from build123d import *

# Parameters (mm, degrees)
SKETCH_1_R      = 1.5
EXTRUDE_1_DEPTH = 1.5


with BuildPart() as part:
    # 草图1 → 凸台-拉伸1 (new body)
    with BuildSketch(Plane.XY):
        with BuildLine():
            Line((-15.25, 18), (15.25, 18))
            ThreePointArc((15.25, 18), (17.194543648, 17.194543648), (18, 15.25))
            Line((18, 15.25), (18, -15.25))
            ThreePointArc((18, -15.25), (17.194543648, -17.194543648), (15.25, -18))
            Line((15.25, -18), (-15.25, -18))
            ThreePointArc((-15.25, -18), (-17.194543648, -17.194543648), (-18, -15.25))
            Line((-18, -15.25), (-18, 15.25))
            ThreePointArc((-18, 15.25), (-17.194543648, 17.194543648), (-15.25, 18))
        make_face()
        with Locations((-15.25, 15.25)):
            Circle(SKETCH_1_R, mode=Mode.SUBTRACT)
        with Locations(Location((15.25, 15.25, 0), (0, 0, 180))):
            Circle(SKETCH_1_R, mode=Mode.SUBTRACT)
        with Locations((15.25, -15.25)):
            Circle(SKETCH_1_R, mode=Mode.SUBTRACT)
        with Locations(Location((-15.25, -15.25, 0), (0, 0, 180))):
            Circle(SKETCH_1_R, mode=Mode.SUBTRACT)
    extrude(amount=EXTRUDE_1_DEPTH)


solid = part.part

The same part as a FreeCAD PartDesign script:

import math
import FreeCAD as App
import Part
import Sketcher

V = App.Vector
Q = App.Units.Quantity

doc = App.newDocument("Part")
params = doc.addObject("Spreadsheet::Sheet", "Params")
for row, (alias, value) in enumerate([
    ("sketch1_diameter", "3 mm"),
    ("sketch1_radius", "2.75 mm"),
    ("sketch1_width", "30.5 mm"),
    ("pad1_length", "1.5 mm"),
], start=1):
    params.set(f"A{row}", alias)
    params.set(f"B{row}", "=" + value)
    params.setAlias(f"B{row}", alias)

body = doc.addObject("PartDesign::Body", "Body")

sketch1 = body.newObject("Sketcher::SketchObject", "Sketch")
sketch1.AttachmentSupport = (doc.getObject("XY_Plane"), [""])
sketch1.MapMode = "FlatFace"
sketch1.addGeometry(Part.LineSegment(V(15.2, 18, 0), V(-15.2, 18, 0)), False)
sketch1.addGeometry(Part.ArcOfCircle(Part.Circle(V(-15.2, 15.2, 0), V(0, 0, 1), 2.8), math.radians(90), math.radians(180)), False)
sketch1.addGeometry(Part.LineSegment(V(-18, 15.2, 0), V(-18, -15.2, 0)), False)
sketch1.addGeometry(Part.ArcOfCircle(Part.Circle(V(-15.2, -15.2, 0), V(0, 0, 1), 2.8), math.radians(-180), math.radians(-90)), False)
sketch1.addGeometry(Part.LineSegment(V(-15.2, -18, 0), V(15.2, -18, 0)), False)
sketch1.addGeometry(Part.ArcOfCircle(Part.Circle(V(15.2, -15.2, 0), V(0, 0, 1), 2.8), math.radians(-90), math.radians(0)), False)
sketch1.addGeometry(Part.LineSegment(V(18, -15.2, 0), V(18, 15.2, 0)), False)
sketch1.addGeometry(Part.ArcOfCircle(Part.Circle(V(15.2, 15.2, 0), V(0, 0, 1), 2.8), math.radians(0), math.radians(90)), False)
sketch1.addGeometry(Part.Circle(V(15.2, -15.2, 0), V(0, 0, 1), 1.5), False)
sketch1.addGeometry(Part.Circle(V(-15.2, -15.2, 0), V(0, 0, 1), 1.5), False)
sketch1.addGeometry(Part.Circle(V(15.2, 15.2, 0), V(0, 0, 1), 1.5), False)
sketch1.addGeometry(Part.Circle(V(-15.2, 15.2, 0), V(0, 0, 1), 1.5), False)
sketch1.addConstraint(Sketcher.Constraint("Tangent", 0, 2, 1, 1))
sketch1.addConstraint(Sketcher.Constraint("Tangent", 1, 2, 2, 1))
sketch1.addConstraint(Sketcher.Constraint("Tangent", 2, 2, 3, 1))
sketch1.addConstraint(Sketcher.Constraint("Tangent", 3, 2, 4, 1))
sketch1.addConstraint(Sketcher.Constraint("Tangent", 4, 2, 5, 1))
sketch1.addConstraint(Sketcher.Constraint("Tangent", 5, 2, 6, 1))
sketch1.addConstraint(Sketcher.Constraint("Tangent", 6, 2, 7, 1))
sketch1.addConstraint(Sketcher.Constraint("Tangent", 7, 2, 0, 1))
sketch1.addConstraint(Sketcher.Constraint("Horizontal", 0))
sketch1.addConstraint(Sketcher.Constraint("Vertical", 2))
sketch1.addConstraint(Sketcher.Constraint("Horizontal", 4))
sketch1.addConstraint(Sketcher.Constraint("Vertical", 6))
sketch1.addConstraint(Sketcher.Constraint("Coincident", 8, 3, 5, 3))
sketch1.addConstraint(Sketcher.Constraint("Coincident", 9, 3, 3, 3))
sketch1.addConstraint(Sketcher.Constraint("Coincident", 10, 3, 7, 3))
sketch1.addConstraint(Sketcher.Constraint("Coincident", 11, 3, 1, 3))
sketch1.addConstraint(Sketcher.Constraint("Equal", 1, 3))
sketch1.addConstraint(Sketcher.Constraint("Equal", 3, 5))
sketch1.addConstraint(Sketcher.Constraint("Equal", 5, 7))
sketch1.addConstraint(Sketcher.Constraint("Equal", 8, 9))
sketch1.addConstraint(Sketcher.Constraint("Equal", 9, 10))
sketch1.addConstraint(Sketcher.Constraint("Equal", 10, 11))
sketch1.addConstraint(Sketcher.Constraint("Symmetric", 1, 3, 5, 3, -1, 1))
sketch1.addConstraint(Sketcher.Constraint("Equal", 4, 2))
sketch1.addConstraint(Sketcher.Constraint("Diameter", 8, Q("3 mm")))
sketch1.addConstraint(Sketcher.Constraint("Radius", 1, Q("2.75 mm")))
sketch1.addConstraint(Sketcher.Constraint("DistanceX", 0, 2, 0, 1, Q("30.5 mm")))
sketch1.setExpression("Constraints[24]", "Params.sketch1_diameter")
sketch1.setExpression("Constraints[25]", "Params.sketch1_radius")
sketch1.setExpression("Constraints[26]", "Params.sketch1_width")
pad1 = body.newObject("PartDesign::Pad", "Pad")
pad1.Profile = sketch1
pad1.setExpression("Length", "Params.pad1_length")

doc.recompute()
